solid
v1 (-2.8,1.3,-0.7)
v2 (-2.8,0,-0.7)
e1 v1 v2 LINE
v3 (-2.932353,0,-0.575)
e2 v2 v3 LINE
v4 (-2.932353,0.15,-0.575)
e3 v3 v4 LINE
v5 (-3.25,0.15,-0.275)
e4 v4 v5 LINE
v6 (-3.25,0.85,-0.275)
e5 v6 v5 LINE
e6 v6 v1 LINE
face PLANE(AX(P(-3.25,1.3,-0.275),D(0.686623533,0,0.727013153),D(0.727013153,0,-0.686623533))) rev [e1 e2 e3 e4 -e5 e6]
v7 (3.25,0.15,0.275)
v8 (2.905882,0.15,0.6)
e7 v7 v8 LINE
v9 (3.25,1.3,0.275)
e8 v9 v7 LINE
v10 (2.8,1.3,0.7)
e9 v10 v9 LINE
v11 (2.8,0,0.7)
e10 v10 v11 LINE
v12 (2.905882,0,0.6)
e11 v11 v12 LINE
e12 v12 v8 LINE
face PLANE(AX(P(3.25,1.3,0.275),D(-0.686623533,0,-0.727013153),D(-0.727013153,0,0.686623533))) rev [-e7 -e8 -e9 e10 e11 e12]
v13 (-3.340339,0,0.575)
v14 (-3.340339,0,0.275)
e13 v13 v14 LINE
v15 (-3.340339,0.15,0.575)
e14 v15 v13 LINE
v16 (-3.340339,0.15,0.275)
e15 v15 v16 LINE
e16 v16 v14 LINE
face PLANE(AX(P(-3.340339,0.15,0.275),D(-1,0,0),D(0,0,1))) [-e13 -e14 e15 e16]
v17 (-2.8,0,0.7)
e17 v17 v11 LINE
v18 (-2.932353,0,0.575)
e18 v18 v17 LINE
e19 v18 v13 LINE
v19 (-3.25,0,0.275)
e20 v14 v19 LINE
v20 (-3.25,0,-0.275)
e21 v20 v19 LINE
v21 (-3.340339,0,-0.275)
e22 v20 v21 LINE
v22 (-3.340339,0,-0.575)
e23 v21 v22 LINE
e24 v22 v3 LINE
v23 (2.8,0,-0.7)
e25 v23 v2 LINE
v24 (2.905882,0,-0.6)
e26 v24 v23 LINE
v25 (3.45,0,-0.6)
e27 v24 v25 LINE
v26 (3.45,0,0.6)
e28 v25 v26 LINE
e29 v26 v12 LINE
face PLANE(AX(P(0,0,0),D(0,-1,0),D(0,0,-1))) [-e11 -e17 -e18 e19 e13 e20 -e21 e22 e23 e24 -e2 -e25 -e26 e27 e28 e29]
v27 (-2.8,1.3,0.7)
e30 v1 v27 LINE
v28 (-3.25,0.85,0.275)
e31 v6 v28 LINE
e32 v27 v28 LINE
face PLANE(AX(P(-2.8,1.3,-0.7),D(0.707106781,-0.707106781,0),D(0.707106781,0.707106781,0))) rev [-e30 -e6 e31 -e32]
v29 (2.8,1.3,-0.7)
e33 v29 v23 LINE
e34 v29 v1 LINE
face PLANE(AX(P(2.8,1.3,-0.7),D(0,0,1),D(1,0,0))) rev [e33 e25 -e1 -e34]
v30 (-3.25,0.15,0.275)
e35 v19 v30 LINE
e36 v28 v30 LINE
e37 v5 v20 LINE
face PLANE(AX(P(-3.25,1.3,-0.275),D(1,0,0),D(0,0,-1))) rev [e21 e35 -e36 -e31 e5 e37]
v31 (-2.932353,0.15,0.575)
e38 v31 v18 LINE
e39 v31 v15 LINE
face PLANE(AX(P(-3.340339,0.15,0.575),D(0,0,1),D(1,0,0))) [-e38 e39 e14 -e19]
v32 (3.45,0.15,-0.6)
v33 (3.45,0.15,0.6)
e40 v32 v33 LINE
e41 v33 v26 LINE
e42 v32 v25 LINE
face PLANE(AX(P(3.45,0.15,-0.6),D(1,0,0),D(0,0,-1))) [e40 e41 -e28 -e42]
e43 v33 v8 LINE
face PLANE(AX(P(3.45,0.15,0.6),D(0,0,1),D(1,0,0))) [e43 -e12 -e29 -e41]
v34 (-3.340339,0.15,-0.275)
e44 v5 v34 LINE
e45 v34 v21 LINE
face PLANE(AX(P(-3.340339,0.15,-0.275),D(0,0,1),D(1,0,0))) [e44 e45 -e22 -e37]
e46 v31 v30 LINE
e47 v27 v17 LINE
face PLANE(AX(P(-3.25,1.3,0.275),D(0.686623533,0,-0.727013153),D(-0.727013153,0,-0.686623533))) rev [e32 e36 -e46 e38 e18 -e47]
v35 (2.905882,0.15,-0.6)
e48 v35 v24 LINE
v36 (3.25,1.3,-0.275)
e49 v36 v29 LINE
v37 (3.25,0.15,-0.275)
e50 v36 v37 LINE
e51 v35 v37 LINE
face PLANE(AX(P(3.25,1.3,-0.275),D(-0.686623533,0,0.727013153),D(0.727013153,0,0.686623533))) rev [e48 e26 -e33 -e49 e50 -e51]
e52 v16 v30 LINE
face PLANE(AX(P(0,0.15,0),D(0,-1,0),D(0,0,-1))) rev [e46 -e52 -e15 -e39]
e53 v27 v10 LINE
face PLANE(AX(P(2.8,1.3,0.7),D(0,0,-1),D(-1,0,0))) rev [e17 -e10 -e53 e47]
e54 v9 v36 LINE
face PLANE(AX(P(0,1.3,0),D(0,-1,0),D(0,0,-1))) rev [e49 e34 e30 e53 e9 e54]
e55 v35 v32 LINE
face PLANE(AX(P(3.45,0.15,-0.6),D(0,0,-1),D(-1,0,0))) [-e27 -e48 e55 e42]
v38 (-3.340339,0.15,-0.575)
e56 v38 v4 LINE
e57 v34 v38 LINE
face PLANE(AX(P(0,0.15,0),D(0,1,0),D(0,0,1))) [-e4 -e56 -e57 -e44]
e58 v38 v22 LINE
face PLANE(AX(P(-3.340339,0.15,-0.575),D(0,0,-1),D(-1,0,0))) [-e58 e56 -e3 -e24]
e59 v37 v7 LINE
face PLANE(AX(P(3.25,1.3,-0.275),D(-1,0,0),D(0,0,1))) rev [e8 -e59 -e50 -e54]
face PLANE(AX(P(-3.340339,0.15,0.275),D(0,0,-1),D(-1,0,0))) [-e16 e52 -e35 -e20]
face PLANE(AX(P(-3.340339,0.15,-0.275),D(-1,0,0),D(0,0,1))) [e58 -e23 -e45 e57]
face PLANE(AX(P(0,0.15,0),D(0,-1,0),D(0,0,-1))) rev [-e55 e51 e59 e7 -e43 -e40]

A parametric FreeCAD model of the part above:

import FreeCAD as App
import Part
import Sketcher

V = App.Vector
Q = App.Units.Quantity

doc = App.newDocument("Part")
body = doc.addObject("PartDesign::Body", "Body")

# Sketch on XZ plane
sketch1 = body.newObject("Sketcher::SketchObject", "Sketch")
sketch1.AttachmentSupport = (doc.getObject("XZ_Plane"), [""])
sketch1.MapMode = "FlatFace"
sketch1.addGeometry([
    Part.LineSegment(V(-2.8, 0.7, 0), V(2.8, 0.7, 0)),  # 0
    Part.LineSegment(V(2.8, 0.7, 0), V(3.2, 0.3, 0)),  # 1
    Part.LineSegment(V(3.2, 0.3, 0), V(3.2, -0.3, 0)),  # 2
    Part.LineSegment(V(3.2, -0.3, 0), V(2.8, -0.7, 0)),  # 3
    Part.LineSegment(V(2.8, -0.7, 0), V(-2.8, -0.7, 0)),  # 4
    Part.LineSegment(V(-2.8, -0.7, 0), V(-3.2, -0.3, 0)),  # 5
    Part.LineSegment(V(-3.2, -0.3, 0), V(-3.2, 0.3, 0)),  # 6
    Part.LineSegment(V(-3.2, 0.3, 0), V(-2.8, 0.7, 0)),  # 7
], False)
sketch1.addConstraint([
    Sketcher.Constraint("Coincident", 0, 2, 1, 1),
    Sketcher.Constraint("Coincident", 1, 2, 2, 1),
    Sketcher.Constraint("Coincident", 2, 2, 3, 1),
    Sketcher.Constraint("Coincident", 3, 2, 4, 1),
    Sketcher.Constraint("Coincident", 4, 2, 5, 1),
    Sketcher.Constraint("Coincident", 5, 2, 6, 1),
    Sketcher.Constraint("Coincident", 6, 2, 7, 1),
    Sketcher.Constraint("Coincident", 7, 2, 0, 1),
    Sketcher.Constraint("Horizontal", 0),
    Sketcher.Constraint("Vertical", 2),
    Sketcher.Constraint("Horizontal", 4),
    Sketcher.Constraint("Vertical", 6),
    Sketcher.Constraint("Symmetric", 0, 2, 4, 2, -1, 1),
    Sketcher.Constraint("Symmetric", 1, 2, 5, 2, -1, 1),
    Sketcher.Constraint("Parallel", 3, 7),
    Sketcher.Constraint("Horizontal", 2, 2, 5, 2),
    Sketcher.Constraint("Horizontal", 1, 2, 6, 2),
    Sketcher.Constraint("Vertical", 0, 2, 3, 2),
    Sketcher.Constraint("DistanceX", 0, 1, 0, 2, Q("5.6 mm")),
    Sketcher.Constraint("DistanceY", 2, 2, 2, 1, Q("0.55 mm")),
    Sketcher.Constraint("DistanceY", -1, 1, 0, 2, Q("0.7 mm")),
    Sketcher.Constraint("DistanceX", 5, 2, 2, 2, Q("6.5 mm")),
])
pad1 = body.newObject("PartDesign::Pad", "Pad")
pad1.Profile = sketch1
pad1.Length = 1.3
pad1.Reversed = True

# Sketch on XY plane
sketch2 = body.newObject("Sketcher::SketchObject", "Sketch001")
sketch2.AttachmentSupport = (doc.getObject("XY_Plane"), [""])
sketch2.MapMode = "FlatFace"
sketch2.AttachmentOffset = App.Placement(V(0, 0, 0.7), App.Rotation())
sketch2.addGeometry([
    Part.LineSegment(V(-3.2, 0.8, 0), V(-2.8, 1.3, 0)),
    Part.LineSegment(V(-2.8, 1.3, 0), V(-3.5, 1.3, 0)),
    Part.LineSegment(V(-3.5, 1.3, 0), V(-3.2, 0.8, 0)),
], False)
sketch2.addConstraint([
    Sketcher.Constraint("Coincident", 0, 2, 1, 1),
    Sketcher.Constraint("Coincident", 1, 2, 2, 1),
    Sketcher.Constraint("Coincident", 2, 2, 0, 1),
    Sketcher.Constraint("Angle", 0, Q("45 deg")),
    Sketcher.Constraint("DistanceX", 0, 2, -1, 1, Q("2.8 mm")),
    Sketcher.Constraint("DistanceY", -1, 1, 0, 2, Q("1.3 mm")),
    Sketcher.Constraint("DistanceX", 2, 2, -1, 1, Q("3.25 mm")),
    Sketcher.Constraint("Distance", 1, Q("0.68825 mm")),
    Sketcher.Constraint("Distance", 2, Q("0.543265 mm")),
])
pocket1 = body.newObject("PartDesign::Pocket", "Pocket")
pocket1.Profile = sketch2
pocket1.Type = "ThroughAll"

# Sketch on XZ plane
sketch3 = body.newObject("Sketcher::SketchObject", "Sketch002")
sketch3.AttachmentSupport = (doc.getObject("XZ_Plane"), [""])
sketch3.MapMode = "FlatFace"
sketch3.addGeometry([
    Part.LineSegment(V(2.85, 0.6, 0), V(2.85, -0.6, 0)),  # 0
    Part.LineSegment(V(2.85, -0.6, 0), V(3.45, -0.6, 0)),  # 1
    Part.LineSegment(V(3.45, -0.6, 0), V(3.45, 0.6, 0)),  # 2
    Part.LineSegment(V(3.45, 0.6, 0), V(2.85, 0.6, 0)),  # 3
    Part.LineSegment(V(-3.34, 0.57, 0), V(-3.34, 0.28, 0)),  # 4
    Part.LineSegment(V(-3.34, 0.28, 0), V(-2.79, 0.28, 0)),  # 5
    Part.LineSegment(V(-2.79, 0.28, 0), V(-2.79, 0.57, 0)),  # 6
    Part.LineSegment(V(-2.79, 0.57, 0), V(-3.34, 0.57, 0)),  # 7
    Part.LineSegment(V(-3.34, -0.28, 0), V(-3.34, -0.57, 0)),  # 8
    Part.LineSegment(V(-3.34, -0.57, 0), V(-2.79, -0.57, 0)),  # 9
    Part.LineSegment(V(-2.79, -0.57, 0), V(-2.79, -0.28, 0)),  # 10
    Part.LineSegment(V(-2.79, -0.28, 0), V(-3.34, -0.28, 0)),  # 11
], False)
sketch3.addConstraint([
    Sketcher.Constraint("Coincident", 0, 2, 1, 1),
    Sketcher.Constraint("Coincident", 1, 2, 2, 1),
    Sketcher.Constraint("Coincident", 2, 2, 3, 1),
    Sketcher.Constraint("Coincident", 3, 2, 0, 1),
    Sketcher.Constraint("Coincident", 4, 2, 5, 1),
    Sketcher.Constraint("Coincident", 5, 2, 6, 1),
    Sketcher.Constraint("Coincident", 6, 2, 7, 1),
    Sketcher.Constraint("Coincident", 7, 2, 4, 1),
    Sketcher.Constraint("Coincident", 8, 2, 9, 1),
    Sketcher.Constraint("Coincident", 9, 2, 10, 1),
    Sketcher.Constraint("Coincident", 10, 2, 11, 1),
    Sketcher.Constraint("Coincident", 11, 2, 8, 1),
    Sketcher.Constraint("Vertical", 0),
    Sketcher.Constraint("Horizontal", 1),
    Sketcher.Constraint("Vertical", 2),
    Sketcher.Constraint("Horizontal", 3),
    Sketcher.Constraint("Vertical", 4),
    Sketcher.Constraint("Horizontal", 5),
    Sketcher.Constraint("Vertical", 6),
    Sketcher.Constraint("Horizontal", 7),
    Sketcher.Constraint("Vertical", 8),
    Sketcher.Constraint("Horizontal", 9),
    Sketcher.Constraint("Vertical", 10),
    Sketcher.Constraint("Horizontal", 11),
    Sketcher.Constraint("Symmetric", 7, 2, 8, 2, -1),
    Sketcher.Constraint("Symmetric", 5, 2, 10, 2, -1),
    Sketcher.Constraint("DistanceX", 1, 1, 1, 2, Q("0.6 mm")),
    Sketcher.Constraint("DistanceY", 0, 2, 0, 1, Q("1.2 mm")),
    Sketcher.Constraint("DistanceY", 4, 2, 4, 1, Q("0.3 mm")),
    Sketcher.Constraint("DistanceX", 5, 1, 5, 2, Q("0.55 mm")),
    Sketcher.Constraint("DistanceY", 0, 2, -1, 1, Q("0.6 mm")),
    Sketcher.Constraint("DistanceX", -1, 1, 0, 2, Q("2.85 mm")),
    Sketcher.Constraint("DistanceY", 8, 2, 4, 2, Q("0.85 mm")),
    Sketcher.Constraint("DistanceX", 4, 2, -1, 1, Q("3.340339 mm")),
])
pad2 = body.newObject("PartDesign::Pad", "Pad001")
pad2.Profile = sketch3
pad2.Length = 0.15
pad2.Reversed = True

doc.recompute()
